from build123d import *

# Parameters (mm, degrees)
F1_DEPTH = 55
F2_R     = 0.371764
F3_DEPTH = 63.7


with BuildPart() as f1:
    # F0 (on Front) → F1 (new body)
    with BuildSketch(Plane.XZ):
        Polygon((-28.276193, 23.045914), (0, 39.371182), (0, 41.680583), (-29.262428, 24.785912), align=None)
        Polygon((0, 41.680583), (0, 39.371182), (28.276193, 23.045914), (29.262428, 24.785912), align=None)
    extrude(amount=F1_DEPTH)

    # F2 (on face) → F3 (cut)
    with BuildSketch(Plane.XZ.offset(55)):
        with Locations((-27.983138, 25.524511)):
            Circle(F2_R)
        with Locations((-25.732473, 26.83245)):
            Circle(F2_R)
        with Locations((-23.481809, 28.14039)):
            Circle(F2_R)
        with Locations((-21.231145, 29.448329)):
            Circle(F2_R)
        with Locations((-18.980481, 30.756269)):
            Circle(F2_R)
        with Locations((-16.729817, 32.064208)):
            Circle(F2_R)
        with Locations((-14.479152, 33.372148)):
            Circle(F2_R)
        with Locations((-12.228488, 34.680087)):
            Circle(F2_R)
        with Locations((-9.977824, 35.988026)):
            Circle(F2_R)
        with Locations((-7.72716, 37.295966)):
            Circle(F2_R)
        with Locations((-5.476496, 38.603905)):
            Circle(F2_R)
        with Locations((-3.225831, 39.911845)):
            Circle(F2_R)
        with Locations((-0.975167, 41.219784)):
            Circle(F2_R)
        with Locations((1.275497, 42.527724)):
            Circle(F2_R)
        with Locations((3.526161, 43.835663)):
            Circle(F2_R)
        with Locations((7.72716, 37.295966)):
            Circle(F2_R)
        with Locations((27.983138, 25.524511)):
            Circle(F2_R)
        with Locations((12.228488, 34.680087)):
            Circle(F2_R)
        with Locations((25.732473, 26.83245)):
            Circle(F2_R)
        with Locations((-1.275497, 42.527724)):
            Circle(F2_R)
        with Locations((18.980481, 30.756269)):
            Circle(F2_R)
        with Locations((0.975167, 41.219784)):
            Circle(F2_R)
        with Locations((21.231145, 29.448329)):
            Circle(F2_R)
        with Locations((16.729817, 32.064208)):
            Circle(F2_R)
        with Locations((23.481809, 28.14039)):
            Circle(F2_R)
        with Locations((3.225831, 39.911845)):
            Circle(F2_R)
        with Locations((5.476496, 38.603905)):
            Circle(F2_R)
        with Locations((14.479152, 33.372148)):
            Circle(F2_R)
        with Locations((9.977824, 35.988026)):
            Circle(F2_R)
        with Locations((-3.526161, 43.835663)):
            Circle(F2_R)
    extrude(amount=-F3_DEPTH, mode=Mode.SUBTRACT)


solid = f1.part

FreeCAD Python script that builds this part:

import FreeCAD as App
import Part
import Sketcher
from FreeCAD import Vector
Q = App.Units.Quantity


def add_polygon(sketch, points):
    """Adds a closed chain of lines whose ends are joined by coincident constraints."""
    first, n = sketch.GeometryCount, len(points)
    for a, b in zip(points, points[1:] + points[:1]):
        sketch.addGeometry(Part.LineSegment(App.Vector(*a, 0), App.Vector(*b, 0)), False)
    for i in range(n):
        sketch.addConstraint(Sketcher.Constraint("Coincident", first + i, 2, first + (i + 1) % n, 1))

doc = App.newDocument("Part")
body = doc.addObject("PartDesign::Body", "Body")

sketch1 = body.newObject("Sketcher::SketchObject", "Sketch")
sketch1.AttachmentSupport = (doc.getObject("XZ_Plane"), [""])
sketch1.MapMode = "FlatFace"
add_polygon(sketch1, [(-28.3, 23), (0, 39.4), (28.3, 23), (29.3, 24.8), (0, 41.7), (-29.3, 24.8)])
sketch1.addConstraint([
    Sketcher.Constraint("Symmetric", 2, 2, 4, 2, -2),
    Sketcher.Constraint("Symmetric", 1, 2, 5, 2, -2),
    Sketcher.Constraint("PointOnObject", 0, 2, -2),
    Sketcher.Constraint("PointOnObject", 3, 2, -2),
    Sketcher.Constraint("Parallel", 1, 3),
    Sketcher.Constraint("Angle", 0, Q("30.000001 deg")),
    Sketcher.Constraint("DistanceY", 0, 2, 3, 2, 2.309401),
    Sketcher.Constraint("Distance", 3, 33.789342),
    Sketcher.Constraint("DistanceY", -1, 1, 0, 2, 39.371182),
    Sketcher.Constraint("DistanceY", 1, 2, 3, 2, 18.634669),
])
pad1 = body.newObject("PartDesign::Pad", "Pad")
pad1.Profile = sketch1
pad1.Length = 55

sketch2 = body.newObject("Sketcher::SketchObject", "Sketch001")
sketch2.AttachmentSupport = (doc.getObject("XZ_Plane"), [""])
sketch2.MapMode = "FlatFace"
sketch2.AttachmentOffset = App.Placement(Vector(0, 0, 55), App.Rotation())
sketch2.addGeometry([
    Part.Circle(Vector(-27.98, 25.52, 0), Vector(0, 0, 1), 0.37),
    Part.Circle(Vector(-25.73, 26.83, 0), Vector(0, 0, 1), 0.37),
    Part.Circle(Vector(-23.48, 28.14, 0), Vector(0, 0, 1), 0.37),
    Part.Circle(Vector(-21.23, 29.45, 0), Vector(0, 0, 1), 0.37),
    Part.Circle(Vector(-18.98, 30.76, 0), Vector(0, 0, 1), 0.37),
    Part.Circle(Vector(-16.73, 32.06, 0), Vector(0, 0, 1), 0.37),
    Part.Circle(Vector(-14.48, 33.37, 0), Vector(0, 0, 1), 0.37),
    Part.Circle(Vector(-12.23, 34.68, 0), Vector(0, 0, 1), 0.37),
    Part.Circle(Vector(-9.98, 35.99, 0), Vector(0, 0, 1), 0.37),
    Part.Circle(Vector(-7.73, 37.3, 0), Vector(0, 0, 1), 0.37),
    Part.Circle(Vector(-5.48, 38.6, 0), Vector(0, 0, 1), 0.37),
    Part.Circle(Vector(-3.23, 39.91, 0), Vector(0, 0, 1), 0.37),
    Part.Circle(Vector(-0.98, 41.22, 0), Vector(0, 0, 1), 0.37),
    Part.Circle(Vector(1.28, 42.53, 0), Vector(0, 0, 1), 0.37),
    Part.Circle(Vector(3.53, 43.84, 0), Vector(0, 0, 1), 0.37),
    Part.Circle(Vector(7.73, 37.3, 0), Vector(0, 0, 1), 0.37),
    Part.Circle(Vector(27.98, 25.52, 0), Vector(0, 0, 1), 0.37),
    Part.Circle(Vector(12.23, 34.68, 0), Vector(0, 0, 1), 0.37),
    Part.Circle(Vector(25.73, 26.83, 0), Vector(0, 0, 1), 0.37),
    Part.Circle(Vector(-1.28, 42.53, 0), Vector(0, 0, 1), 0.37),
    Part.Circle(Vector(18.98, 30.76, 0), Vector(0, 0, 1), 0.37),
    Part.Circle(Vector(0.98, 41.22, 0), Vector(0, 0, 1), 0.37),
    Part.Circle(Vector(21.23, 29.45, 0), Vector(0, 0, 1), 0.37),
    Part.Circle(Vector(16.73, 32.06, 0), Vector(0, 0, 1), 0.37),
    Part.Circle(Vector(23.48, 28.14, 0), Vector(0, 0, 1), 0.37),
    Part.Circle(Vector(3.23, 39.91, 0), Vector(0, 0, 1), 0.37),
    Part.Circle(Vector(5.48, 38.6, 0), Vector(0, 0, 1), 0.37),
    Part.Circle(Vector(14.48, 33.37, 0), Vector(0, 0, 1), 0.37),
    Part.Circle(Vector(9.98, 35.99, 0), Vector(0, 0, 1), 0.37),
    Part.Circle(Vector(-3.53, 43.84, 0), Vector(0, 0, 1), 0.37),
], False)
sketch2.addConstraint([
    Sketcher.Constraint("Equal", 0, 1),
    Sketcher.Constraint("Equal", 1, 2),
    Sketcher.Constraint("Equal", 2, 3),
    Sketcher.Constraint("Equal", 3, 4),
    Sketcher.Constraint("Equal", 4, 5),
    Sketcher.Constraint("Equal", 5, 6),
    Sketcher.Constraint("Equal", 6, 7),
    Sketcher.Constraint("Equal", 7, 8),
    Sketcher.Constraint("Equal", 8, 9),
    Sketcher.Constraint("Equal", 9, 10),
    Sketcher.Constraint("Equal", 10, 11),
    Sketcher.Constraint("Equal", 11, 12),
    Sketcher.Constraint("Equal", 12, 13),
    Sketcher.Constraint("Equal", 13, 14),
    Sketcher.Constraint("Equal", 14, 15),
    Sketcher.Constraint("Equal", 15, 16),
    Sketcher.Constraint("Equal", 16, 17),
    Sketcher.Constraint("Equal", 17, 18),
    Sketcher.Constraint("Equal", 18, 19),
    Sketcher.Constraint("Equal", 19, 20),
    Sketcher.Constraint("Equal", 20, 21),
    Sketcher.Constraint("Equal", 21, 22),
    Sketcher.Constraint("Equal", 22, 23),
    Sketcher.Constraint("Equal", 23, 24),
    Sketcher.Constraint("Equal", 24, 25),
    Sketcher.Constraint("Equal", 25, 26),
    Sketcher.Constraint("Equal", 26, 27),
    Sketcher.Constraint("Equal", 27, 28),
    Sketcher.Constraint("Equal", 28, 29),
    Sketcher.Constraint("Symmetric", 9, 3, 15, 3, -2),
    Sketcher.Constraint("Symmetric", 0, 3, 16, 3, -2),
    Sketcher.Constraint("Symmetric", 7, 3, 17, 3, -2),
    Sketcher.Constraint("Symmetric", 1, 3, 18, 3, -2),
    Sketcher.Constraint("Symmetric", 13, 3, 19, 3, -2),
    Sketcher.Constraint("Symmetric", 4, 3, 20, 3, -2),
    Sketcher.Constraint("Symmetric", 12, 3, 21, 3, -2),
    Sketcher.Constraint("Symmetric", 3, 3, 22, 3, -2),
    Sketcher.Constraint("Symmetric", 5, 3, 23, 3, -2),
    Sketcher.Constraint("Symmetric", 2, 3, 24, 3, -2),
    Sketcher.Constraint("Symmetric", 11, 3, 25, 3, -2),
    Sketcher.Constraint("Symmetric", 10, 3, 26, 3, -2),
    Sketcher.Constraint("Symmetric", 6, 3, 27, 3, -2),
    Sketcher.Constraint("Symmetric", 8, 3, 28, 3, -2),
    Sketcher.Constraint("Symmetric", 14, 3, 29, 3, -2),
    Sketcher.Constraint("Diameter", 0, 0.743528),
    Sketcher.Constraint("DistanceX", 14, 3, 15, 3, 4.200999),
    Sketcher.Constraint("DistanceX", 10, 3, 19, 3, 4.200999),
    Sketcher.Constraint("DistanceX", 11, 3, 21, 3, 4.200998),
    Sketcher.Constraint("DistanceY", 1, 3, 6, 3, 6.539698),
    Sketcher.Constraint("DistanceY", 8, 3, 13, 3, 6.539698),
    Sketcher.Constraint("DistanceX", 0, 3, -1, 1, 27.983138),
    Sketcher.Constraint("DistanceY", -1, 1, 0, 3, 25.524511),
    Sketcher.Constraint("DistanceY", -1, 1, 1, 3, 26.83245),
    Sketcher.Constraint("DistanceX", 2, 3, -1, 1, 23.481809),
    Sketcher.Constraint("DistanceY", -1, 1, 2, 3, 28.14039),
    Sketcher.Constraint("DistanceY", -1, 1, 3, 3, 29.448329),
    Sketcher.Constraint("DistanceX", 4, 3, -1, 1, 18.980481),
    Sketcher.Constraint("DistanceY", -1, 1, 4, 3, 30.756269),
    Sketcher.Constraint("DistanceX", 6, 3, -1, 1, 14.479152),
    Sketcher.Constraint("DistanceX", 9, 3, -1, 1, 7.72716),
    Sketcher.Constraint("DistanceX", 11, 3, -1, 1, 3.225831),
    Sketcher.Constraint("DistanceX", 1, 3, 4, 3, 6.751992),
    Sketcher.Constraint("DistanceY", 4, 3, 5, 3, 1.307939),
    Sketcher.Constraint("DistanceX", 3, 3, 5, 3, 4.501328),
    Sketcher.Constraint("DistanceX", 2, 3, 5, 3, 6.751992),
    Sketcher.Constraint("DistanceY", 6, 3, 7, 3, 1.307939),
    Sketcher.Constraint("DistanceX", 5, 3, 7, 3, 4.501329),
    Sketcher.Constraint("DistanceY", 7, 3, 8, 3, 1.307939),
    Sketcher.Constraint("DistanceX", 3, 3, 8, 3, 11.253321),
    Sketcher.Constraint("DistanceY", 8, 3, 9, 3, 1.30794),
    Sketcher.Constraint("DistanceY", 9, 3, 10, 3, 1.307939),
    Sketcher.Constraint("DistanceX", 5, 3, 10, 3, 11.253321),
    Sketcher.Constraint("DistanceY", 10, 3, 11, 3, 1.30794),
    Sketcher.Constraint("DistanceY", 11, 3, 12, 3, 1.307939),
    Sketcher.Constraint("DistanceY", 13, 3, 14, 3, 1.307939),
])
pocket1 = body.newObject("PartDesign::Pocket", "Pocket")
pocket1.Profile = sketch2
pocket1.Length = 63.7

doc.recompute()
